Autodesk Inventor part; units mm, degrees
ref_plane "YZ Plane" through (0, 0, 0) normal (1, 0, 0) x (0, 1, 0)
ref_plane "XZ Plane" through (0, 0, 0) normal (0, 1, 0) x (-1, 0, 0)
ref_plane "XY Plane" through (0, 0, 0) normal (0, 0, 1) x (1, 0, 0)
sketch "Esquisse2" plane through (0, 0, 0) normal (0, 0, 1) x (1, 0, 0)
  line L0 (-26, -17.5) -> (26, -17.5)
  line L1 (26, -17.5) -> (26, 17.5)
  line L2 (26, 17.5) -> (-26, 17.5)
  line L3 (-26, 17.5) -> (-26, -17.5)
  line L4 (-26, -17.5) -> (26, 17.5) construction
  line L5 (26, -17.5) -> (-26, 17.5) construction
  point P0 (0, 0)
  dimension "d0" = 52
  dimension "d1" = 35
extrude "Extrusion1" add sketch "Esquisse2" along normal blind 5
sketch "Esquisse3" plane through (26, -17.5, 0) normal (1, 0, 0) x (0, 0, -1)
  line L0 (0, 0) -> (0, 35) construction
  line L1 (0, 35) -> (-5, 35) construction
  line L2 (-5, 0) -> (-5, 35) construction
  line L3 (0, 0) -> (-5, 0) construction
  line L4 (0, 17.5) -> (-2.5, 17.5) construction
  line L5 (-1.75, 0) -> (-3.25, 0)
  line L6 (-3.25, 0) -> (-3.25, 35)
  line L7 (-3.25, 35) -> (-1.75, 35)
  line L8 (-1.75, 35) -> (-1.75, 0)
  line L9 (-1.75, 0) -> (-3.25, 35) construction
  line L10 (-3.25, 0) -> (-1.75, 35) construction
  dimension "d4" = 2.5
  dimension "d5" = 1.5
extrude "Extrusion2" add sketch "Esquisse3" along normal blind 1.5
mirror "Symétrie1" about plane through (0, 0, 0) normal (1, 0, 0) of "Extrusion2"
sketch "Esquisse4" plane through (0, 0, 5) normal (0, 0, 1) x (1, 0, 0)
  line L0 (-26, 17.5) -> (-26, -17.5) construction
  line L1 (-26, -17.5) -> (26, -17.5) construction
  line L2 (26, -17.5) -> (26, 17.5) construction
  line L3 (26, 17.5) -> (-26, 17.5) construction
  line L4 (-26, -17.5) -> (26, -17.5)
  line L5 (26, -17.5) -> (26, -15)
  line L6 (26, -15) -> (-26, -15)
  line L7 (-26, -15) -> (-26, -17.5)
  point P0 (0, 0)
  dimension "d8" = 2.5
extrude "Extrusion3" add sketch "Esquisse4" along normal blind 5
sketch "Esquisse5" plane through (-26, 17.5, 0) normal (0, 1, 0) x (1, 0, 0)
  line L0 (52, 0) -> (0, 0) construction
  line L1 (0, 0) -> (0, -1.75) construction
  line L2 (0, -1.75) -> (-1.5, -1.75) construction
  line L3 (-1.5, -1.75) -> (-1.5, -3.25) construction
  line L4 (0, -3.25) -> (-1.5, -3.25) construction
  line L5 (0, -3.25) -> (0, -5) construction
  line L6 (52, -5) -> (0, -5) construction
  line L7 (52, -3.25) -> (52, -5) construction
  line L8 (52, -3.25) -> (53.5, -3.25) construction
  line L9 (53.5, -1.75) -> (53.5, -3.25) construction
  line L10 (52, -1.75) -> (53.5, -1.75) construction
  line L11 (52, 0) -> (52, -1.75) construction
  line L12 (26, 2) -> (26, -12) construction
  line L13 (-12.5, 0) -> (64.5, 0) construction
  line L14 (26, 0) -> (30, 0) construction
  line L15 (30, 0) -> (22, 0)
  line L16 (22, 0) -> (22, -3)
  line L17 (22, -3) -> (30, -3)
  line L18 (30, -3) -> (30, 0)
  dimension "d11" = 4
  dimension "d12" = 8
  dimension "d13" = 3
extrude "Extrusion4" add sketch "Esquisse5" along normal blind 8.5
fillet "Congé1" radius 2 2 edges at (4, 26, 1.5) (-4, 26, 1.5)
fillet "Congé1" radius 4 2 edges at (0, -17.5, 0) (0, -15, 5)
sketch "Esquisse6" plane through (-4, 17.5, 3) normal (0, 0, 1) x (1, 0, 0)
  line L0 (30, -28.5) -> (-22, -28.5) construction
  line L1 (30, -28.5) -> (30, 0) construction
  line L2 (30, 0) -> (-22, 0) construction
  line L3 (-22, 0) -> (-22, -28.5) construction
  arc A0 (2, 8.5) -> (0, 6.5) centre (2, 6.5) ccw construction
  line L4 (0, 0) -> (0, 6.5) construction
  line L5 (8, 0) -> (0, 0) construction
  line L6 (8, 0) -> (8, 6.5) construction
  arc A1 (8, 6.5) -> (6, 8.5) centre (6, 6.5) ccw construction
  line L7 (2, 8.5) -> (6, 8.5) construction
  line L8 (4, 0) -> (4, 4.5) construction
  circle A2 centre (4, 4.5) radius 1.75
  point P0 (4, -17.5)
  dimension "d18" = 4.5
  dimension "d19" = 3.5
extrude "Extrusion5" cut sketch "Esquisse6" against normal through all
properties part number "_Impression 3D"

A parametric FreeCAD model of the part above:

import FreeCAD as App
import Part
import Sketcher
from FreeCAD import Vector


def edges_at(feature, points):
    """Names of the edges that pass closest to the given points."""
    edges = feature.Shape.Edges
    near = lambda p: min(range(len(edges)), key=lambda i: edges[i].distToShape(Part.Vertex(*p))[0])
    return sorted({f"Edge{near(p) + 1}" for p in points})

doc = App.newDocument("Part")
body = doc.addObject("PartDesign::Body", "Body")

# Sketch on XY plane
sketch1 = doc.addObject("Sketcher::SketchObject", "Sketch")
body.addObject(sketch1)
sketch1.AttachmentSupport = (doc.XY_Plane, [""])
sketch1.MapMode = "FlatFace"
sketch1.addGeometry([
    Part.LineSegment(Vector(-26, 17.5, 0), Vector(-26, -17.5, 0)),
    Part.LineSegment(Vector(-26, -17.5, 0), Vector(26, -17.5, 0)),
    Part.LineSegment(Vector(26, -17.5, 0), Vector(26, 17.5, 0)),
    Part.LineSegment(Vector(26, 17.5, 0), Vector(-26, 17.5, 0)),
], False)
sketch1.addConstraint([
    Sketcher.Constraint("Coincident", 0, 2, 1, 1),
    Sketcher.Constraint("Coincident", 1, 2, 2, 1),
    Sketcher.Constraint("Coincident", 2, 2, 3, 1),
    Sketcher.Constraint("Coincident", 3, 2, 0, 1),
    Sketcher.Constraint("Vertical", 0),
    Sketcher.Constraint("Horizontal", 1),
    Sketcher.Constraint("Vertical", 2),
    Sketcher.Constraint("Horizontal", 3),
    Sketcher.Constraint("Symmetric", 0, 2, 2, 2, -1, 1),
    Sketcher.Constraint("DistanceX", 1, 1, 1, 2, 52.0),
    Sketcher.Constraint("DistanceY", 0, 2, 0, 1, 35.0),
])
pad1 = doc.addObject("PartDesign::Pad", "Pad")
body.addObject(pad1)
pad1.Profile = sketch1
pad1.Length = 5

# Sketch on YZ plane
sketch2 = doc.addObject("Sketcher::SketchObject", "Sketch001")
body.addObject(sketch2)
sketch2.AttachmentSupport = (doc.YZ_Plane, [""])
sketch2.MapMode = "FlatFace"
sketch2.AttachmentOffset = App.Placement(Vector(0, 0, 26), App.Rotation())
sketch2.addGeometry([
    Part.LineSegment(Vector(-17.5, 3.25, 0), Vector(-17.5, 1.75, 0)),
    Part.LineSegment(Vector(-17.5, 1.75, 0), Vector(17.5, 1.75, 0)),
    Part.LineSegment(Vector(17.5, 1.75, 0), Vector(17.5, 3.25, 0)),
    Part.LineSegment(Vector(17.5, 3.25, 0), Vector(-17.5, 3.25, 0)),
], False)
sketch2.addConstraint([
    Sketcher.Constraint("Coincident", 0, 2, 1, 1),
    Sketcher.Constraint("Coincident", 1, 2, 2, 1),
    Sketcher.Constraint("Coincident", 2, 2, 3, 1),
    Sketcher.Constraint("Coincident", 3, 2, 0, 1),
    Sketcher.Constraint("Vertical", 0),
    Sketcher.Constraint("Horizontal", 1),
    Sketcher.Constraint("Vertical", 2),
    Sketcher.Constraint("Horizontal", 3),
    Sketcher.Constraint("DistanceY", 0, 2, 0, 1, 1.5),
    Sketcher.Constraint("DistanceX", 1, 1, 1, 2, 35.0),
    Sketcher.Constraint("DistanceX", 0, 2, -1, 1, 17.5),
    Sketcher.Constraint("DistanceY", -1, 1, 0, 2, 1.75),
])
pad2 = doc.addObject("PartDesign::Pad", "Pad001")
body.addObject(pad2)
pad2.Profile = sketch2
pad2.Length = 1.5
doc.recompute()

mirrored = doc.addObject("PartDesign::Mirrored", "Mirrored")
body.addObject(mirrored)
mirrored.Originals = [pad2]
mirrored.MirrorPlane = (doc.YZ_Plane, [""])
body.Tip = mirrored

# Sketch on XY plane
sketch3 = doc.addObject("Sketcher::SketchObject", "Sketch002")
body.addObject(sketch3)
sketch3.AttachmentSupport = (doc.XY_Plane, [""])
sketch3.MapMode = "FlatFace"
sketch3.AttachmentOffset = App.Placement(Vector(0, 0, 5), App.Rotation())
sketch3.addGeometry([
    Part.LineSegment(Vector(-26, -15, 0), Vector(-26, -17.5, 0)),
    Part.LineSegment(Vector(-26, -17.5, 0), Vector(26, -17.5, 0)),
    Part.LineSegment(Vector(26, -17.5, 0), Vector(26, -15, 0)),
    Part.LineSegment(Vector(26, -15, 0), Vector(-26, -15, 0)),
], False)
sketch3.addConstraint([
    Sketcher.Constraint("Coincident", 0, 2, 1, 1),
    Sketcher.Constraint("Coincident", 1, 2, 2, 1),
    Sketcher.Constraint("Coincident", 2, 2, 3, 1),
    Sketcher.Constraint("Coincident", 3, 2, 0, 1),
    Sketcher.Constraint("Vertical", 0),
    Sketcher.Constraint("Horizontal", 1),
    Sketcher.Constraint("Vertical", 2),
    Sketcher.Constraint("Horizontal", 3),
    Sketcher.Constraint("DistanceY", 0, 2, 0, 1, 2.5),
    Sketcher.Constraint("DistanceX", 1, 1, 1, 2, 52.0),
    Sketcher.Constraint("DistanceX", 0, 2, -1, 1, 26.0),
    Sketcher.Constraint("DistanceY", 2, 2, -1, 1, 15.0),
])
pad3 = doc.addObject("PartDesign::Pad", "Pad002")
body.addObject(pad3)
pad3.Profile = sketch3
pad3.Length = 5

# Sketch on XZ plane
sketch4 = doc.addObject("Sketcher::SketchObject", "Sketch003")
body.addObject(sketch4)
sketch4.AttachmentSupport = (doc.XZ_Plane, [""])
sketch4.MapMode = "FlatFace"
sketch4.AttachmentOffset = App.Placement(Vector(0, 0, -17.5), App.Rotation())
sketch4.addGeometry([
    Part.LineSegment(Vector(4, 3, 0), Vector(4, 0, 0)),
    Part.LineSegment(Vector(4, 0, 0), Vector(-4, 0, 0)),
    Part.LineSegment(Vector(-4, 0, 0), Vector(-4, 3, 0)),
    Part.LineSegment(Vector(-4, 3, 0), Vector(4, 3, 0)),
], False)
sketch4.addConstraint([
    Sketcher.Constraint("Coincident", 0, 2, 1, 1),
    Sketcher.Constraint("Coincident", 1, 2, 2, 1),
    Sketcher.Constraint("Coincident", 2, 2, 3, 1),
    Sketcher.Constraint("Coincident", 3, 2, 0, 1),
    Sketcher.Constraint("Vertical", 0),
    Sketcher.Constraint("Horizontal", 1),
    Sketcher.Constraint("Vertical", 2),
    Sketcher.Constraint("Horizontal", 3),
    Sketcher.Constraint("Symmetric", 0, 2, 1, 2, -1, 1),
    Sketcher.Constraint("DistanceX", 1, 2, 1, 1, 8.0),
    Sketcher.Constraint("DistanceY", 0, 2, 0, 1, 3.0),
])
pad4 = doc.addObject("PartDesign::Pad", "Pad003")
body.addObject(pad4)
pad4.Profile = sketch4
pad4.Length = 8.5
pad4.Reversed = True
doc.recompute()

fillet = doc.addObject("PartDesign::Fillet", "Fillet")
body.addObject(fillet)
fillet.Base = (pad4, edges_at(pad4, [(4, 26, 1.5), (-4, 26, 1.5)]))
fillet.Radius = 2
doc.recompute()

fillet2 = doc.addObject("PartDesign::Fillet", "Fillet001")
body.addObject(fillet2)
fillet2.Base = (fillet, edges_at(fillet, [(0, -17.5, 0), (0, -15, 5)]))
fillet2.Radius = 4

# Sketch on XY plane
sketch5 = doc.addObject("Sketcher::SketchObject", "Sketch004")
body.addObject(sketch5)
sketch5.AttachmentSupport = (doc.XY_Plane, [""])
sketch5.MapMode = "FlatFace"
sketch5.AttachmentOffset = App.Placement(Vector(0, 0, 3), App.Rotation())
sketch5.addGeometry(Part.Circle(Vector(0, 22, 0), Vector(0, 0, 1), 1.75), False)
sketch5.addConstraint([
    Sketcher.Constraint("PointOnObject", 0, 3, -2),
    Sketcher.Constraint("Diameter", 0, 3.5),
    Sketcher.Constraint("DistanceY", -1, 1, 0, 3, 22.0),
])
pocket1 = doc.addObject("PartDesign::Pocket", "Pocket")
body.addObject(pocket1)
pocket1.Profile = sketch5
pocket1.Type = "ThroughAll"

doc.recompute()
